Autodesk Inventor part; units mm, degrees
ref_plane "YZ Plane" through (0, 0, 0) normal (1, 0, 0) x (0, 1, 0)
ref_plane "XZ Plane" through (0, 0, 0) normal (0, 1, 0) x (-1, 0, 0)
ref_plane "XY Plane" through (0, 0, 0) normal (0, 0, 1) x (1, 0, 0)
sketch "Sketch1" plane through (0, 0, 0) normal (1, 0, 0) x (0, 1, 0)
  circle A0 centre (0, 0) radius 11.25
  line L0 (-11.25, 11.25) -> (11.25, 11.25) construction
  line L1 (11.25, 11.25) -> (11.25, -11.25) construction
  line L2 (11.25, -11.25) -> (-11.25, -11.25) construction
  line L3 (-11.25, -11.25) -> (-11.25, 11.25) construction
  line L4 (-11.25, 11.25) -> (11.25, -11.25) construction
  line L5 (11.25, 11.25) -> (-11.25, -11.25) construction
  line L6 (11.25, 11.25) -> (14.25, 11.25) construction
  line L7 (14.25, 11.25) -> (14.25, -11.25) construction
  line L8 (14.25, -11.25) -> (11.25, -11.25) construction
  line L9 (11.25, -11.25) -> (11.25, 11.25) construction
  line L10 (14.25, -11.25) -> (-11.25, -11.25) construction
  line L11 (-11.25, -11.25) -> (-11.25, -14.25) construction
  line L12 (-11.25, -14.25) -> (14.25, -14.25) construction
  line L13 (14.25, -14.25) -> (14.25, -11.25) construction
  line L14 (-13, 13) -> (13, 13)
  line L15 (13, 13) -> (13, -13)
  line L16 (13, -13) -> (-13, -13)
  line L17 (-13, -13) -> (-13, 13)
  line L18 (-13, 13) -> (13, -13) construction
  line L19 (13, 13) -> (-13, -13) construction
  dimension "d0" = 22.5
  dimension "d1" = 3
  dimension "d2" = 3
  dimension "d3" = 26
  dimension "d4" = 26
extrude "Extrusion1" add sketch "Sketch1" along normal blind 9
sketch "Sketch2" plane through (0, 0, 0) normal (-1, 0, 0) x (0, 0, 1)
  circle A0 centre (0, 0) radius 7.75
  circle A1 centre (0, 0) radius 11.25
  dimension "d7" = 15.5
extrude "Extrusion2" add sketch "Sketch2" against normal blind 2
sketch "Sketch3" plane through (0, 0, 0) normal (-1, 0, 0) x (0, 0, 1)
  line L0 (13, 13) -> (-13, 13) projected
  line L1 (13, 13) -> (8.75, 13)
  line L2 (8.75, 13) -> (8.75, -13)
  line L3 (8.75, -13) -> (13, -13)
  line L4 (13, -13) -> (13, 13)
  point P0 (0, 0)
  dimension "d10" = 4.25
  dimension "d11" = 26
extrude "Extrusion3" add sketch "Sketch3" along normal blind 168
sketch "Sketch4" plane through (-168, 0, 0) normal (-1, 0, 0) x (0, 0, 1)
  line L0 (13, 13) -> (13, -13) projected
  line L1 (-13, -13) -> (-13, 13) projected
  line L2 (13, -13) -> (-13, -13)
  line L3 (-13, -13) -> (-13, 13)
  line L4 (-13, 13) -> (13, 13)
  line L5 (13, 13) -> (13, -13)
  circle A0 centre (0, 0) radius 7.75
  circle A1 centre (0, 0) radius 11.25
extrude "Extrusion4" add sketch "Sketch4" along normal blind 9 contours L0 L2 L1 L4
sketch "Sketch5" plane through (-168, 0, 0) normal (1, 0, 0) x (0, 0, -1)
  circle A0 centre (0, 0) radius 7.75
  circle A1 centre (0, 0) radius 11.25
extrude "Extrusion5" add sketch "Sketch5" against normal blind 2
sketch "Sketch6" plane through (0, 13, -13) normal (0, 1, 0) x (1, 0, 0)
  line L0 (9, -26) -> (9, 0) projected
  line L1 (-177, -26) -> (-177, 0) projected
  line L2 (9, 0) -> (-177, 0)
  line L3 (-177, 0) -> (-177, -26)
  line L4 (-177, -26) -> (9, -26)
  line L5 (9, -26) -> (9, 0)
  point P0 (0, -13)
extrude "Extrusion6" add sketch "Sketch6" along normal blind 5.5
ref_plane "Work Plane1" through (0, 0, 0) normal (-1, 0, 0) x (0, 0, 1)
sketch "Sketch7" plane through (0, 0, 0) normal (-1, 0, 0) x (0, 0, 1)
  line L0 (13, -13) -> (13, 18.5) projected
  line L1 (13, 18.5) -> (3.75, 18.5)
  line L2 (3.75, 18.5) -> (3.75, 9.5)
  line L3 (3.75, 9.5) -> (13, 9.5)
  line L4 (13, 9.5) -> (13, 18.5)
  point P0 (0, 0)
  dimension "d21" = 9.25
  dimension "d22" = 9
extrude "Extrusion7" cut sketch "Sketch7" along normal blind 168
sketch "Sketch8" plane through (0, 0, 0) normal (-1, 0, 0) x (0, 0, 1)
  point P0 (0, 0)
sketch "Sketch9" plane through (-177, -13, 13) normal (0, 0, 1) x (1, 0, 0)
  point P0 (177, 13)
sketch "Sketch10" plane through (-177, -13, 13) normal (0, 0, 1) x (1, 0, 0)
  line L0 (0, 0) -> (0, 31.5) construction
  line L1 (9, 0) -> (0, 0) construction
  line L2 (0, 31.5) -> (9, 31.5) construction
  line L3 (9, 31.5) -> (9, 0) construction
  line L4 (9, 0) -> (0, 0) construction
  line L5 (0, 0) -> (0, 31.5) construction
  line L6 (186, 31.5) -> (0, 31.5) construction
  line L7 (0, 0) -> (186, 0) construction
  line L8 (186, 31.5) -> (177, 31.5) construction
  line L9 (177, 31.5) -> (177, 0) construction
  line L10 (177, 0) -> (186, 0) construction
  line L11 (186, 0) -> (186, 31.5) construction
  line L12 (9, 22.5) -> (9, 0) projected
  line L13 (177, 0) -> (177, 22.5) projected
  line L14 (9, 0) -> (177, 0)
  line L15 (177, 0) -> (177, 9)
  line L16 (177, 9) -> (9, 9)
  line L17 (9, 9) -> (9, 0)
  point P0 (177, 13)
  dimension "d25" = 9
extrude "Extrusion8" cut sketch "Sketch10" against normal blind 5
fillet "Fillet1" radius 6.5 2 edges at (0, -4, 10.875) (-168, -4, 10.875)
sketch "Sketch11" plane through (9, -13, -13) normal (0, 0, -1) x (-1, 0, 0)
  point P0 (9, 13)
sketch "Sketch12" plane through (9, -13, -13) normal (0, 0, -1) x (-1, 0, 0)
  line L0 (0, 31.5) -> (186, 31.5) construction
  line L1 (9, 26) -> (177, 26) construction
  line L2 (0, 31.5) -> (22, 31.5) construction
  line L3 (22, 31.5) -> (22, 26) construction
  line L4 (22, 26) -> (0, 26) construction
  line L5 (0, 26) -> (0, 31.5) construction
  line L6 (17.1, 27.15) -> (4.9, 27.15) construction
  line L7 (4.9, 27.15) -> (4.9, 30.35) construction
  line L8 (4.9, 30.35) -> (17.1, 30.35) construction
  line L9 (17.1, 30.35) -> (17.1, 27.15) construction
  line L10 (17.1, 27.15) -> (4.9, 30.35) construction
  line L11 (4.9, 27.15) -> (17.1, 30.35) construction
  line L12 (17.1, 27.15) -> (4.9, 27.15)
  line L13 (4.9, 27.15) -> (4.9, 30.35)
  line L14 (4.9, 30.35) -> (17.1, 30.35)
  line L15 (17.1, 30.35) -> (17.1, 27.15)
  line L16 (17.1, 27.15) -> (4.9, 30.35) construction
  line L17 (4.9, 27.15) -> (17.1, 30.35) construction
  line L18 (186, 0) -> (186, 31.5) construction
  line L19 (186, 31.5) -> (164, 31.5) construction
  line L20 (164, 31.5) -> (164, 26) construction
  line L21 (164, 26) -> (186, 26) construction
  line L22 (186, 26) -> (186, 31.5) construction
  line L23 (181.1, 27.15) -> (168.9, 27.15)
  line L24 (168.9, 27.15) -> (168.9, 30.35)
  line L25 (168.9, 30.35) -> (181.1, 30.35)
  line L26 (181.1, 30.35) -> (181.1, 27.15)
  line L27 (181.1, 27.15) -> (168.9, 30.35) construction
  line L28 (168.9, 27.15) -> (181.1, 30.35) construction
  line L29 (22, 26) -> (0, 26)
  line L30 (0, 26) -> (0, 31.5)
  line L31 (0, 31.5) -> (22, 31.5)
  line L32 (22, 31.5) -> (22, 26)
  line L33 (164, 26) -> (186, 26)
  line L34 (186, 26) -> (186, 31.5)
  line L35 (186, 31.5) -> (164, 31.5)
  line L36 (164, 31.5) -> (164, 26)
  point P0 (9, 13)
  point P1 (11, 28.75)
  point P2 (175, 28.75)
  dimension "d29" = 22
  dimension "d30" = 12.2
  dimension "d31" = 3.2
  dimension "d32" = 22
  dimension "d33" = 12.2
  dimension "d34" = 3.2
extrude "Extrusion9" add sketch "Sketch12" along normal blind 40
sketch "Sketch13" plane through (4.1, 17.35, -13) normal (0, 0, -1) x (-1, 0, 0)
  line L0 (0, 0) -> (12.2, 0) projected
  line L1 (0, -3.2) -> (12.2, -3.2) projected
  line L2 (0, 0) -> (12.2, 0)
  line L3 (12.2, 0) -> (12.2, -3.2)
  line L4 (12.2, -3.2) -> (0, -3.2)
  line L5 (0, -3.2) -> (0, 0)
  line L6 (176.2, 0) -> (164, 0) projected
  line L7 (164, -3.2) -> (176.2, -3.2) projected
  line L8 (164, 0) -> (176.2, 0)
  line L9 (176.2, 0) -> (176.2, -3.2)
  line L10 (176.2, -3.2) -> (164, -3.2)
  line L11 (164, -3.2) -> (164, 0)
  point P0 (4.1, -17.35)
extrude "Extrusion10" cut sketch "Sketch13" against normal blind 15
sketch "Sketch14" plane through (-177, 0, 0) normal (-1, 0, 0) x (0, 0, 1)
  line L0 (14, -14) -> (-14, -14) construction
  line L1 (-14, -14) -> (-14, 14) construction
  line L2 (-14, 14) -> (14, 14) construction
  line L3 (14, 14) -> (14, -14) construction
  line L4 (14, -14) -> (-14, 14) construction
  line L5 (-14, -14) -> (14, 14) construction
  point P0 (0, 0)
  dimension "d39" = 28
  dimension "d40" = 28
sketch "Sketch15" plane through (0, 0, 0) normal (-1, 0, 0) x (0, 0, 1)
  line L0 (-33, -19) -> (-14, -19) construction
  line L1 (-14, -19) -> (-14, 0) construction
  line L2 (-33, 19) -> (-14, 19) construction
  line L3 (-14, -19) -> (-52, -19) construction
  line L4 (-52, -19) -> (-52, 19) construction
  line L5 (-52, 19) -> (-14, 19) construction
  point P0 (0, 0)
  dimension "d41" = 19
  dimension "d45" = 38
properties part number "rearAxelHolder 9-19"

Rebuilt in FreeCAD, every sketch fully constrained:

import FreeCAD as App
import Part
import Sketcher


def edges_at(feature, points):
    """Names of the edges that pass closest to the given points."""
    edges = feature.Shape.Edges
    near = lambda p: min(range(len(edges)), key=lambda i: edges[i].distToShape(Part.Vertex(*p))[0])
    return sorted({f"Edge{near(p) + 1}" for p in points})

doc = App.newDocument("Part")
body = doc.addObject("PartDesign::Body", "Body")

sketch1 = body.newObject("Sketcher::SketchObject", "Sketch")
sketch1.AttachmentSupport = (doc.getObject("YZ_Plane"), [""])
sketch1.MapMode = "FlatFace"
sketch1.addGeometry(Part.LineSegment(App.Vector(13, 13, 0), App.Vector(-13, 13, 0)), False)
sketch1.addGeometry(Part.LineSegment(App.Vector(-13, 13, 0), App.Vector(-13, -13, 0)), False)
sketch1.addGeometry(Part.LineSegment(App.Vector(-13, -13, 0), App.Vector(13, -13, 0)), False)
sketch1.addGeometry(Part.LineSegment(App.Vector(13, -13, 0), App.Vector(13, 13, 0)), False)
sketch1.addGeometry(Part.Circle(App.Vector(0, 0, 0), App.Vector(0, 0, 1), 11), False)
sketch1.addConstraint(Sketcher.Constraint("Coincident", 0, 2, 1, 1))
sketch1.addConstraint(Sketcher.Constraint("Coincident", 1, 2, 2, 1))
sketch1.addConstraint(Sketcher.Constraint("Coincident", 2, 2, 3, 1))
sketch1.addConstraint(Sketcher.Constraint("Coincident", 3, 2, 0, 1))
sketch1.addConstraint(Sketcher.Constraint("Horizontal", 0))
sketch1.addConstraint(Sketcher.Constraint("Vertical", 1))
sketch1.addConstraint(Sketcher.Constraint("Horizontal", 2))
sketch1.addConstraint(Sketcher.Constraint("Vertical", 3))
sketch1.addConstraint(Sketcher.Constraint("Coincident", 4, 3, -1, 1))
sketch1.addConstraint(Sketcher.Constraint("Symmetric", 0, 2, 2, 2, -1, 1))
sketch1.addConstraint(Sketcher.Constraint("Equal", 2, 1))
sketch1.addConstraint(Sketcher.Constraint("Diameter", 4, 22.5))
sketch1.addConstraint(Sketcher.Constraint("DistanceX", 0, 2, 0, 1, 26.0))
pad1 = body.newObject("PartDesign::Pad", "Pad")
pad1.Profile = sketch1
pad1.Length = 9

sketch2 = body.newObject("Sketcher::SketchObject", "Sketch001")
sketch2.AttachmentSupport = (doc.getObject("YZ_Plane"), [""])
sketch2.MapMode = "FlatFace"
sketch2.addGeometry(Part.Circle(App.Vector(0, 0, 0), App.Vector(0, 0, 1), 11), False)
sketch2.addGeometry(Part.Circle(App.Vector(0, 0, 0), App.Vector(0, 0, 1), 8), False)
sketch2.addConstraint(Sketcher.Constraint("Coincident", 0, 3, -1, 1))
sketch2.addConstraint(Sketcher.Constraint("Coincident", 1, 3, -1, 1))
sketch2.addConstraint(Sketcher.Constraint("Diameter", 1, 15.5))
sketch2.addConstraint(Sketcher.Constraint("Diameter", 0, 22.5))
pad2 = body.newObject("PartDesign::Pad", "Pad001")
pad2.Profile = sketch2
pad2.Length = 2

sketch3 = body.newObject("Sketcher::SketchObject", "Sketch002")
sketch3.AttachmentSupport = (doc.getObject("YZ_Plane"), [""])
sketch3.MapMode = "FlatFace"
sketch3.addGeometry(Part.LineSegment(App.Vector(-13, 13, 0), App.Vector(13, 13, 0)), False)
sketch3.addGeometry(Part.LineSegment(App.Vector(13, 13, 0), App.Vector(13, 8.8, 0)), False)
sketch3.addGeometry(Part.LineSegment(App.Vector(13, 8.8, 0), App.Vector(-13, 8.8, 0)), False)
sketch3.addGeometry(Part.LineSegment(App.Vector(-13, 8.8, 0), App.Vector(-13, 13, 0)), False)
sketch3.addConstraint(Sketcher.Constraint("Coincident", 0, 2, 1, 1))
sketch3.addConstraint(Sketcher.Constraint("Coincident", 1, 2, 2, 1))
sketch3.addConstraint(Sketcher.Constraint("Coincident", 2, 2, 3, 1))
sketch3.addConstraint(Sketcher.Constraint("Coincident", 3, 2, 0, 1))
sketch3.addConstraint(Sketcher.Constraint("Horizontal", 0))
sketch3.addConstraint(Sketcher.Constraint("Vertical", 1))
sketch3.addConstraint(Sketcher.Constraint("Horizontal", 2))
sketch3.addConstraint(Sketcher.Constraint("Vertical", 3))
sketch3.addConstraint(Sketcher.Constraint("DistanceX", 0, 1, 0, 2, 26.0))
sketch3.addConstraint(Sketcher.Constraint("DistanceY", 1, 2, 1, 1, 4.25))
sketch3.addConstraint(Sketcher.Constraint("DistanceX", -1, 1, 0, 2, 13.0))
sketch3.addConstraint(Sketcher.Constraint("DistanceY", -1, 1, 0, 2, 13.0))
pad3 = body.newObject("PartDesign::Pad", "Pad002")
pad3.Profile = sketch3
pad3.Length = 168
pad3.Reversed = True

sketch4 = body.newObject("Sketcher::SketchObject", "Sketch003")
sketch4.AttachmentSupport = (doc.getObject("YZ_Plane"), [""])
sketch4.MapMode = "FlatFace"
sketch4.AttachmentOffset = App.Placement(App.Vector(0, 0, -168), App.Rotation())
sketch4.addGeometry(Part.LineSegment(App.Vector(-13, 13, 0), App.Vector(13, 13, 0)), False)
sketch4.addGeometry(Part.LineSegment(App.Vector(13, 13, 0), App.Vector(13, -13, 0)), False)
sketch4.addGeometry(Part.LineSegment(App.Vector(13, -13, 0), App.Vector(-13, -13, 0)), False)
sketch4.addGeometry(Part.LineSegment(App.Vector(-13, -13, 0), App.Vector(-13, 13, 0)), False)
sketch4.addGeometry(Part.Circle(App.Vector(0, 0, 0), App.Vector(0, 0, 1), 11), False)
sketch4.addConstraint(Sketcher.Constraint("Coincident", 0, 2, 1, 1))
sketch4.addConstraint(Sketcher.Constraint("Coincident", 1, 2, 2, 1))
sketch4.addConstraint(Sketcher.Constraint("Coincident", 2, 2, 3, 1))
sketch4.addConstraint(Sketcher.Constraint("Coincident", 3, 2, 0, 1))
sketch4.addConstraint(Sketcher.Constraint("Horizontal", 0))
sketch4.addConstraint(Sketcher.Constraint("Vertical", 1))
sketch4.addConstraint(Sketcher.Constraint("Horizontal", 2))
sketch4.addConstraint(Sketcher.Constraint("Vertical", 3))
sketch4.addConstraint(Sketcher.Constraint("Coincident", 4, 3, -1, 1))
sketch4.addConstraint(Sketcher.Constraint("Symmetric", 0, 2, 2, 2, -1, 1))
sketch4.addConstraint(Sketcher.Constraint("Equal", 2, 1))
sketch4.addConstraint(Sketcher.Constraint("Diameter", 4, 22.5))
sketch4.addConstraint(Sketcher.Constraint("DistanceX", 0, 1, 0, 2, 26.0))
pad4 = body.newObject("PartDesign::Pad", "Pad003")
pad4.Profile = sketch4
pad4.Length = 9
pad4.Reversed = True

sketch5 = body.newObject("Sketcher::SketchObject", "Sketch004")
sketch5.AttachmentSupport = (doc.getObject("YZ_Plane"), [""])
sketch5.MapMode = "FlatFace"
sketch5.AttachmentOffset = App.Placement(App.Vector(0, 0, -168), App.Rotation())
sketch5.addGeometry(Part.Circle(App.Vector(0, 0, 0), App.Vector(0, 0, 1), 11), False)
sketch5.addGeometry(Part.Circle(App.Vector(0, 0, 0), App.Vector(0, 0, 1), 8), False)
sketch5.addConstraint(Sketcher.Constraint("Coincident", 0, 3, -1, 1))
sketch5.addConstraint(Sketcher.Constraint("Coincident", 1, 3, -1, 1))
sketch5.addConstraint(Sketcher.Constraint("Diameter", 0, 22.5))
sketch5.addConstraint(Sketcher.Constraint("Diameter", 1, 15.5))
pad5 = body.newObject("PartDesign::Pad", "Pad004")
pad5.Profile = sketch5
pad5.Length = 2
pad5.Reversed = True

sketch6 = body.newObject("Sketcher::SketchObject", "Sketch005")
sketch6.AttachmentSupport = (doc.getObject("XZ_Plane"), [""])
sketch6.MapMode = "FlatFace"
sketch6.AttachmentOffset = App.Placement(App.Vector(0, 0, -13), App.Rotation())
sketch6.addGeometry(Part.LineSegment(App.Vector(-177, 13, 0), App.Vector(9, 13, 0)), False)
sketch6.addGeometry(Part.LineSegment(App.Vector(9, 13, 0), App.Vector(9, -13, 0)), False)
sketch6.addGeometry(Part.LineSegment(App.Vector(9, -13, 0), App.Vector(-177, -13, 0)), False)
sketch6.addGeometry(Part.LineSegment(App.Vector(-177, -13, 0), App.Vector(-177, 13, 0)), False)
sketch6.addConstraint(Sketcher.Constraint("Coincident", 0, 2, 1, 1))
sketch6.addConstraint(Sketcher.Constraint("Coincident", 1, 2, 2, 1))
sketch6.addConstraint(Sketcher.Constraint("Coincident", 2, 2, 3, 1))
sketch6.addConstraint(Sketcher.Constraint("Coincident", 3, 2, 0, 1))
sketch6.addConstraint(Sketcher.Constraint("Horizontal", 0))
sketch6.addConstraint(Sketcher.Constraint("Vertical", 1))
sketch6.addConstraint(Sketcher.Constraint("Horizontal", 2))
sketch6.addConstraint(Sketcher.Constraint("Vertical", 3))
sketch6.addConstraint(Sketcher.Constraint("DistanceX", 0, 1, 0, 2, 186.0))
sketch6.addConstraint(Sketcher.Constraint("DistanceY", 1, 2, 1, 1, 26.0))
sketch6.addConstraint(Sketcher.Constraint("DistanceX", -1, 1, 0, 2, 9.0))
sketch6.addConstraint(Sketcher.Constraint("DistanceY", -1, 1, 0, 2, 13.0))
pad6 = body.newObject("PartDesign::Pad", "Pad005")
pad6.Profile = sketch6
pad6.Length = 5.5
pad6.Reversed = True

sketch7 = body.newObject("Sketcher::SketchObject", "Sketch006")
sketch7.AttachmentSupport = (doc.getObject("YZ_Plane"), [""])
sketch7.MapMode = "FlatFace"
sketch7.addGeometry(Part.LineSegment(App.Vector(10, 4, 0), App.Vector(10, 13, 0)), False)
sketch7.addGeometry(Part.LineSegment(App.Vector(10, 13, 0), App.Vector(18, 13, 0)), False)
sketch7.addGeometry(Part.LineSegment(App.Vector(18, 13, 0), App.Vector(18, 4, 0)), False)
sketch7.addGeometry(Part.LineSegment(App.Vector(18, 4, 0), App.Vector(10, 4, 0)), False)
sketch7.addConstraint(Sketcher.Constraint("Coincident", 0, 2, 1, 1))
sketch7.addConstraint(Sketcher.Constraint("Coincident", 1, 2, 2, 1))
sketch7.addConstraint(Sketcher.Constraint("Coincident", 2, 2, 3, 1))
sketch7.addConstraint(Sketcher.Constraint("Coincident", 3, 2, 0, 1))
sketch7.addConstraint(Sketcher.Constraint("Vertical", 0))
sketch7.addConstraint(Sketcher.Constraint("Horizontal", 1))
sketch7.addConstraint(Sketcher.Constraint("Vertical", 2))
sketch7.addConstraint(Sketcher.Constraint("Horizontal", 3))
sketch7.addConstraint(Sketcher.Constraint("DistanceX", 1, 1, 1, 2, 9.0))
sketch7.addConstraint(Sketcher.Constraint("DistanceY", 0, 1, 0, 2, 9.25))
sketch7.addConstraint(Sketcher.Constraint("DistanceY", -1, 1, 0, 2, 13.0))
sketch7.addConstraint(Sketcher.Constraint("DistanceX", -1, 1, 0, 2, 9.5))
pocket1 = body.newObject("PartDesign::Pocket", "Pocket")
pocket1.Profile = sketch7
pocket1.Length = 168

sketch8 = body.newObject("Sketcher::SketchObject", "Sketch007")
sketch8.AttachmentSupport = (doc.getObject("XY_Plane"), [""])
sketch8.MapMode = "FlatFace"
sketch8.AttachmentOffset = App.Placement(App.Vector(0, 0, 13), App.Rotation())
sketch8.addGeometry(Part.LineSegment(App.Vector(0, -4, 0), App.Vector(-168, -4, 0)), False)
sketch8.addGeometry(Part.LineSegment(App.Vector(-168, -4, 0), App.Vector(-168, -13, 0)), False)
sketch8.addGeometry(Part.LineSegment(App.Vector(-168, -13, 0), App.Vector(0, -13, 0)), False)
sketch8.addGeometry(Part.LineSegment(App.Vector(0, -13, 0), App.Vector(0, -4, 0)), False)
sketch8.addConstraint(Sketcher.Constraint("Coincident", 0, 2, 1, 1))
sketch8.addConstraint(Sketcher.Constraint("Coincident", 1, 2, 2, 1))
sketch8.addConstraint(Sketcher.Constraint("Coincident", 2, 2, 3, 1))
sketch8.addConstraint(Sketcher.Constraint("Coincident", 3, 2, 0, 1))
sketch8.addConstraint(Sketcher.Constraint("Horizontal", 0))
sketch8.addConstraint(Sketcher.Constraint("Vertical", 1))
sketch8.addConstraint(Sketcher.Constraint("Horizontal", 2))
sketch8.addConstraint(Sketcher.Constraint("Vertical", 3))
sketch8.addConstraint(Sketcher.Constraint("PointOnObject", 2, 2, -2))
sketch8.addConstraint(Sketcher.Constraint("DistanceY", 1, 2, 1, 1, 9.0))
sketch8.addConstraint(Sketcher.Constraint("DistanceX", 0, 2, 0, 1, 168.0))
sketch8.addConstraint(Sketcher.Constraint("DistanceY", 0, 2, -1, 1, 4.0))
pocket2 = body.newObject("PartDesign::Pocket", "Pocket001")
pocket2.Profile = sketch8
pocket2.Length = 5
doc.recompute()

fillet = body.newObject("PartDesign::Fillet", "Fillet")
fillet.Base = (pocket2, edges_at(pocket2, [(0, -4, 10.875), (-168, -4, 10.875)]))
fillet.Radius = 6.5

sketch9 = body.newObject("Sketcher::SketchObject", "Sketch008")
sketch9.AttachmentSupport = (doc.getObject("XY_Plane"), [""])
sketch9.MapMode = "FlatFace"
sketch9.AttachmentOffset = App.Placement(App.Vector(0, 0, -13), App.Rotation())
sketch9.addGeometry(Part.LineSegment(App.Vector(9, 13, 0), App.Vector(-13, 13, 0)), False)
sketch9.addGeometry(Part.LineSegment(App.Vector(-13, 13, 0), App.Vector(-13, 18.5, 0)), False)
sketch9.addGeometry(Part.LineSegment(App.Vector(-13, 18.5, 0), App.Vector(9, 18.5, 0)), False)
sketch9.addGeometry(Part.LineSegment(App.Vector(9, 18.5, 0), App.Vector(9, 13, 0)), False)
sketch9.addGeometry(Part.LineSegment(App.Vector(-8.1, 17.4, 0), App.Vector(-8.1, 14.2, 0)), False)
sketch9.addGeometry(Part.LineSegment(App.Vector(-8.1, 14.2, 0), App.Vector(4.1, 14.2, 0)), False)
sketch9.addGeometry(Part.LineSegment(App.Vector(4.1, 14.2, 0), App.Vector(4.1, 17.4, 0)), False)
sketch9.addGeometry(Part.LineSegment(App.Vector(4.1, 17.4, 0), App.Vector(-8.1, 17.4, 0)), False)
sketch9.addGeometry(Part.LineSegment(App.Vector(-155, 18.5, 0), App.Vector(-155, 13, 0)), False)
sketch9.addGeometry(Part.LineSegment(App.Vector(-155, 13, 0), App.Vector(-177, 13, 0)), False)
sketch9.addGeometry(Part.LineSegment(App.Vector(-177, 13, 0), App.Vector(-177, 18.5, 0)), False)
sketch9.addGeometry(Part.LineSegment(App.Vector(-177, 18.5, 0), App.Vector(-155, 18.5, 0)), False)
sketch9.addGeometry(Part.LineSegment(App.Vector(-172.1, 17.4, 0), App.Vector(-172.1, 14.2, 0)), False)
sketch9.addGeometry(Part.LineSegment(App.Vector(-172.1, 14.2, 0), App.Vector(-159.9, 14.2, 0)), False)
sketch9.addGeometry(Part.LineSegment(App.Vector(-159.9, 14.2, 0), App.Vector(-159.9, 17.4, 0)), False)
sketch9.addGeometry(Part.LineSegment(App.Vector(-159.9, 17.4, 0), App.Vector(-172.1, 17.4, 0)), False)
sketch9.addConstraint(Sketcher.Constraint("Coincident", 0, 2, 1, 1))
sketch9.addConstraint(Sketcher.Constraint("Coincident", 1, 2, 2, 1))
sketch9.addConstraint(Sketcher.Constraint("Coincident", 2, 2, 3, 1))
sketch9.addConstraint(Sketcher.Constraint("Coincident", 3, 2, 0, 1))
sketch9.addConstraint(Sketcher.Constraint("Coincident", 4, 2, 5, 1))
sketch9.addConstraint(Sketcher.Constraint("Coincident", 5, 2, 6, 1))
sketch9.addConstraint(Sketcher.Constraint("Coincident", 6, 2, 7, 1))
sketch9.addConstraint(Sketcher.Constraint("Coincident", 7, 2, 4, 1))
sketch9.addConstraint(Sketcher.Constraint("Coincident", 8, 2, 9, 1))
sketch9.addConstraint(Sketcher.Constraint("Coincident", 9, 2, 10, 1))
sketch9.addConstraint(Sketcher.Constraint("Coincident", 10, 2, 11, 1))
sketch9.addConstraint(Sketcher.Constraint("Coincident", 11, 2, 8, 1))
sketch9.addConstraint(Sketcher.Constraint("Coincident", 12, 2, 13, 1))
sketch9.addConstraint(Sketcher.Constraint("Coincident", 13, 2, 14, 1))
sketch9.addConstraint(Sketcher.Constraint("Coincident", 14, 2, 15, 1))
sketch9.addConstraint(Sketcher.Constraint("Coincident", 15, 2, 12, 1))
sketch9.addConstraint(Sketcher.Constraint("Horizontal", 0))
sketch9.addConstraint(Sketcher.Constraint("Vertical", 1))
sketch9.addConstraint(Sketcher.Constraint("Horizontal", 2))
sketch9.addConstraint(Sketcher.Constraint("Vertical", 3))
sketch9.addConstraint(Sketcher.Constraint("Vertical", 4))
sketch9.addConstraint(Sketcher.Constraint("Horizontal", 5))
sketch9.addConstraint(Sketcher.Constraint("Vertical", 6))
sketch9.addConstraint(Sketcher.Constraint("Horizontal", 7))
sketch9.addConstraint(Sketcher.Constraint("Vertical", 8))
sketch9.addConstraint(Sketcher.Constraint("Horizontal", 9))
sketch9.addConstraint(Sketcher.Constraint("Vertical", 10))
sketch9.addConstraint(Sketcher.Constraint("Horizontal", 11))
sketch9.addConstraint(Sketcher.Constraint("Vertical", 12))
sketch9.addConstraint(Sketcher.Constraint("Horizontal", 13))
sketch9.addConstraint(Sketcher.Constraint("Vertical", 14))
sketch9.addConstraint(Sketcher.Constraint("Horizontal", 15))
sketch9.addConstraint(Sketcher.Constraint("Horizontal", 3, 2, 8, 2))
sketch9.addConstraint(Sketcher.Constraint("Horizontal", 2, 2, 10, 2))
sketch9.addConstraint(Sketcher.Constraint("Horizontal", 5, 2, 12, 2))
sketch9.addConstraint(Sketcher.Constraint("Horizontal", 7, 2, 14, 2))
sketch9.addConstraint(Sketcher.Constraint("Equal", 2, 9))
sketch9.addConstraint(Sketcher.Constraint("Equal", 7, 13))
sketch9.addConstraint(Sketcher.Constraint("DistanceX", 0, 2, 0, 1, 22.0))
sketch9.addConstraint(Sketcher.Constraint("DistanceX", 5, 1, 5, 2, 12.2))
sketch9.addConstraint(Sketcher.Constraint("DistanceY", 4, 2, 4, 1, 3.2))
sketch9.addConstraint(Sketcher.Constraint("DistanceY", 1, 1, 1, 2, 5.5))
sketch9.addConstraint(Sketcher.Constraint("DistanceX", 0, 2, -1, 1, 13.0))
sketch9.addConstraint(Sketcher.Constraint("DistanceY", -1, 1, 0, 2, 13.0))
sketch9.addConstraint(Sketcher.Constraint("DistanceX", 8, 2, -1, 1, 155.0))
sketch9.addConstraint(Sketcher.Constraint("DistanceX", 4, 2, -1, 1, 8.1))
sketch9.addConstraint(Sketcher.Constraint("DistanceX", 12, 2, -1, 1, 172.1))
sketch9.addConstraint(Sketcher.Constraint("DistanceY", -1, 1, 4, 2, 14.15))
pad7 = body.newObject("PartDesign::Pad", "Pad006")
pad7.Profile = sketch9
pad7.Length = 40
pad7.Reversed = True

sketch10 = body.newObject("Sketcher::SketchObject", "Sketch009")
sketch10.AttachmentSupport = (doc.getObject("XY_Plane"), [""])
sketch10.MapMode = "FlatFace"
sketch10.AttachmentOffset = App.Placement(App.Vector(0, 0, -13), App.Rotation())
sketch10.addGeometry(Part.LineSegment(App.Vector(-8.1, 17.4, 0), App.Vector(4.1, 17.4, 0)), False)
sketch10.addGeometry(Part.LineSegment(App.Vector(4.1, 17.4, 0), App.Vector(4.1, 14.2, 0)), False)
sketch10.addGeometry(Part.LineSegment(App.Vector(4.1, 14.2, 0), App.Vector(-8.1, 14.2, 0)), False)
sketch10.addGeometry(Part.LineSegment(App.Vector(-8.1, 14.2, 0), App.Vector(-8.1, 17.4, 0)), False)
sketch10.addGeometry(Part.LineSegment(App.Vector(-172.1, 14.2, 0), App.Vector(-172.1, 17.4, 0)), False)
sketch10.addGeometry(Part.LineSegment(App.Vector(-172.1, 17.4, 0), App.Vector(-159.9, 17.4, 0)), False)
sketch10.addGeometry(Part.LineSegment(App.Vector(-159.9, 17.4, 0), App.Vector(-159.9, 14.2, 0)), False)
sketch10.addGeometry(Part.LineSegment(App.Vector(-159.9, 14.2, 0), App.Vector(-172.1, 14.2, 0)), False)
sketch10.addConstraint(Sketcher.Constraint("Coincident", 0, 2, 1, 1))
sketch10.addConstraint(Sketcher.Constraint("Coincident", 1, 2, 2, 1))
sketch10.addConstraint(Sketcher.Constraint("Coincident", 2, 2, 3, 1))
sketch10.addConstraint(Sketcher.Constraint("Coincident", 3, 2, 0, 1))
sketch10.addConstraint(Sketcher.Constraint("Coincident", 4, 2, 5, 1))
sketch10.addConstraint(Sketcher.Constraint("Coincident", 5, 2, 6, 1))
sketch10.addConstraint(Sketcher.Constraint("Coincident", 6, 2, 7, 1))
sketch10.addConstraint(Sketcher.Constraint("Coincident", 7, 2, 4, 1))
sketch10.addConstraint(Sketcher.Constraint("Horizontal", 0))
sketch10.addConstraint(Sketcher.Constraint("Vertical", 1))
sketch10.addConstraint(Sketcher.Constraint("Horizontal", 2))
sketch10.addConstraint(Sketcher.Constraint("Vertical", 3))
sketch10.addConstraint(Sketcher.Constraint("Vertical", 4))
sketch10.addConstraint(Sketcher.Constraint("Horizontal", 5))
sketch10.addConstraint(Sketcher.Constraint("Vertical", 6))
sketch10.addConstraint(Sketcher.Constraint("Horizontal", 7))
sketch10.addConstraint(Sketcher.Constraint("Horizontal", 3, 2, 4, 2))
sketch10.addConstraint(Sketcher.Constraint("Horizontal", 2, 2, 6, 2))
sketch10.addConstraint(Sketcher.Constraint("Equal", 2, 5))
sketch10.addConstraint(Sketcher.Constraint("DistanceX", 0, 1, 0, 2, 12.2))
sketch10.addConstraint(Sketcher.Constraint("DistanceY", 1, 2, 1, 1, 3.2))
sketch10.addConstraint(Sketcher.Constraint("DistanceX", 4, 2, 3, 2, 164.0))
sketch10.addConstraint(Sketcher.Constraint("DistanceX", -1, 1, 0, 2, 4.1))
sketch10.addConstraint(Sketcher.Constraint("DistanceY", -1, 1, 0, 2, 17.35))
pocket3 = body.newObject("PartDesign::Pocket", "Pocket002")
pocket3.Profile = sketch10
pocket3.Length = 15
pocket3.Reversed = True

doc.recompute()
